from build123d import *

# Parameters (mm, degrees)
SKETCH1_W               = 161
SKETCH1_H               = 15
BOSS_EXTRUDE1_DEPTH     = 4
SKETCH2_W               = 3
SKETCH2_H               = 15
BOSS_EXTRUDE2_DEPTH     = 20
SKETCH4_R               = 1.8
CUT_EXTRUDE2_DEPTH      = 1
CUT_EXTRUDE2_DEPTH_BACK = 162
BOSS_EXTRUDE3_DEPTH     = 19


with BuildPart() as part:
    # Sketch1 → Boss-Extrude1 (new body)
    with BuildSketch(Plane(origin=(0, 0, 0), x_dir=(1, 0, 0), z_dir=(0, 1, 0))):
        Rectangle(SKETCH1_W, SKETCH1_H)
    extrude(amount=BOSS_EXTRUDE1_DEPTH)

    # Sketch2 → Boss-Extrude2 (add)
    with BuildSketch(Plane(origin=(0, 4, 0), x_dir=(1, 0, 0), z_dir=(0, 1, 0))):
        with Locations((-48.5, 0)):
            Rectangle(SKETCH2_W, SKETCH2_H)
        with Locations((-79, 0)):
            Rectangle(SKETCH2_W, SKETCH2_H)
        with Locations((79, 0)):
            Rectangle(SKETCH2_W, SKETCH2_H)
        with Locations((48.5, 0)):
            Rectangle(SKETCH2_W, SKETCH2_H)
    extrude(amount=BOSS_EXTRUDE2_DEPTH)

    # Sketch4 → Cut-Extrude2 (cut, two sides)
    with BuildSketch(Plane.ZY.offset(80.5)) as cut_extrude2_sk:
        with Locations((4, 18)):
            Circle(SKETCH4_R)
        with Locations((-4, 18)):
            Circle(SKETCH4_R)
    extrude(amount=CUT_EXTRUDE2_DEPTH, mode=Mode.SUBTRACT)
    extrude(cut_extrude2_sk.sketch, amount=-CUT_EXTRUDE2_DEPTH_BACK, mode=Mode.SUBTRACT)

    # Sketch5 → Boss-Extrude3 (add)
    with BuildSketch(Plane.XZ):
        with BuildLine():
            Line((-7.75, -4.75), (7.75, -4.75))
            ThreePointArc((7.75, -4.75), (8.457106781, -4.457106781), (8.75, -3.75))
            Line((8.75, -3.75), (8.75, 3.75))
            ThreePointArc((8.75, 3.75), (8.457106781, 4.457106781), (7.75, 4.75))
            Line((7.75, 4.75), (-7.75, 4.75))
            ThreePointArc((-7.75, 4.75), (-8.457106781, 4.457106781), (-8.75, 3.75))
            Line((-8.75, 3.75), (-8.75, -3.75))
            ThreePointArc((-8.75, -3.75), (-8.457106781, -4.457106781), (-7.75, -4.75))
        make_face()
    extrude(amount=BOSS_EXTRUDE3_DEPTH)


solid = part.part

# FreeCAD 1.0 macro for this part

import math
import FreeCAD as App
import Part
import Sketcher
from FreeCAD import Vector
Q = App.Units.Quantity

doc = App.newDocument("Part")
body = doc.addObject("PartDesign::Body", "Body")

# Sketch on XZ plane
sketch1 = body.newObject("Sketcher::SketchObject", "Sketch")
sketch1.AttachmentSupport = (doc.getObject("XZ_Plane"), [""])
sketch1.MapMode = "FlatFace"
sketch1.addGeometry([
    Part.LineSegment(Vector(-80.5, -7.5, 0), Vector(-80.5, 7.5, 0)),
    Part.LineSegment(Vector(-80.5, 7.5, 0), Vector(80.5, 7.5, 0)),
    Part.LineSegment(Vector(80.5, 7.5, 0), Vector(80.5, -7.5, 0)),
    Part.LineSegment(Vector(80.5, -7.5, 0), Vector(-80.5, -7.5, 0)),
], False)
sketch1.addConstraint([
    Sketcher.Constraint("Coincident", 0, 2, 1, 1),
    Sketcher.Constraint("Coincident", 1, 2, 2, 1),
    Sketcher.Constraint("Coincident", 2, 2, 3, 1),
    Sketcher.Constraint("Coincident", 3, 2, 0, 1),
    Sketcher.Constraint("Vertical", 0),
    Sketcher.Constraint("Horizontal", 1),
    Sketcher.Constraint("Vertical", 2),
    Sketcher.Constraint("Horizontal", 3),
    Sketcher.Constraint("Symmetric", 0, 2, 2, 2, -1, 1),
    Sketcher.Constraint("DistanceX", 1, 1, 1, 2, Q("161 mm")),
    Sketcher.Constraint("DistanceY", 0, 1, 0, 2, Q("15 mm")),
])
pad1 = body.newObject("PartDesign::Pad", "Pad")
pad1.Profile = sketch1
pad1.Length = 4
pad1.Reversed = True

# Sketch on XZ plane
sketch2 = body.newObject("Sketcher::SketchObject", "Sketch001")
sketch2.AttachmentSupport = (doc.getObject("XZ_Plane"), [""])
sketch2.MapMode = "FlatFace"
sketch2.AttachmentOffset = App.Placement(Vector(0, 0, -4), App.Rotation())
sketch2.addGeometry([
    Part.LineSegment(Vector(-50, -7.5, 0), Vector(-50, 7.5, 0)),  # 0
    Part.LineSegment(Vector(-50, 7.5, 0), Vector(-47, 7.5, 0)),  # 1
    Part.LineSegment(Vector(-47, 7.5, 0), Vector(-47, -7.5, 0)),  # 2
    Part.LineSegment(Vector(-47, -7.5, 0), Vector(-50, -7.5, 0)),  # 3
    Part.LineSegment(Vector(-80.5, -7.5, 0), Vector(-80.5, 7.5, 0)),  # 4
    Part.LineSegment(Vector(-80.5, 7.5, 0), Vector(-77.5, 7.5, 0)),  # 5
    Part.LineSegment(Vector(-77.5, 7.5, 0), Vector(-77.5, -7.5, 0)),  # 6
    Part.LineSegment(Vector(-77.5, -7.5, 0), Vector(-80.5, -7.5, 0)),  # 7
    Part.LineSegment(Vector(77.5, -7.5, 0), Vector(77.5, 7.5, 0)),  # 8
    Part.LineSegment(Vector(77.5, 7.5, 0), Vector(80.5, 7.5, 0)),  # 9
    Part.LineSegment(Vector(80.5, 7.5, 0), Vector(80.5, -7.5, 0)),  # 10
    Part.LineSegment(Vector(80.5, -7.5, 0), Vector(77.5, -7.5, 0)),  # 11
    Part.LineSegment(Vector(47, -7.5, 0), Vector(47, 7.5, 0)),  # 12
    Part.LineSegment(Vector(47, 7.5, 0), Vector(50, 7.5, 0)),  # 13
    Part.LineSegment(Vector(50, 7.5, 0), Vector(50, -7.5, 0)),  # 14
    Part.LineSegment(Vector(50, -7.5, 0), Vector(47, -7.5, 0)),  # 15
], False)
sketch2.addConstraint([
    Sketcher.Constraint("Coincident", 0, 2, 1, 1),
    Sketcher.Constraint("Coincident", 1, 2, 2, 1),
    Sketcher.Constraint("Coincident", 2, 2, 3, 1),
    Sketcher.Constraint("Coincident", 3, 2, 0, 1),
    Sketcher.Constraint("Coincident", 4, 2, 5, 1),
    Sketcher.Constraint("Coincident", 5, 2, 6, 1),
    Sketcher.Constraint("Coincident", 6, 2, 7, 1),
    Sketcher.Constraint("Coincident", 7, 2, 4, 1),
    Sketcher.Constraint("Coincident", 8, 2, 9, 1),
    Sketcher.Constraint("Coincident", 9, 2, 10, 1),
    Sketcher.Constraint("Coincident", 10, 2, 11, 1),
    Sketcher.Constraint("Coincident", 11, 2, 8, 1),
    Sketcher.Constraint("Coincident", 12, 2, 13, 1),
    Sketcher.Constraint("Coincident", 13, 2, 14, 1),
    Sketcher.Constraint("Coincident", 14, 2, 15, 1),
    Sketcher.Constraint("Coincident", 15, 2, 12, 1),
    Sketcher.Constraint("Vertical", 0),
    Sketcher.Constraint("Horizontal", 1),
    Sketcher.Constraint("Vertical", 2),
    Sketcher.Constraint("Horizontal", 3),
    Sketcher.Constraint("Vertical", 4),
    Sketcher.Constraint("Horizontal", 5),
    Sketcher.Constraint("Vertical", 6),
    Sketcher.Constraint("Horizontal", 7),
    Sketcher.Constraint("Vertical", 8),
    Sketcher.Constraint("Horizontal", 9),
    Sketcher.Constraint("Vertical", 10),
    Sketcher.Constraint("Horizontal", 11),
    Sketcher.Constraint("Vertical", 12),
    Sketcher.Constraint("Horizontal", 13),
    Sketcher.Constraint("Vertical", 14),
    Sketcher.Constraint("Horizontal", 15),
    Sketcher.Constraint("Symmetric", 6, 2, 8, 2, -1, 1),
    Sketcher.Constraint("Symmetric", 4, 2, 10, 2, -1, 1),
    Sketcher.Constraint("Symmetric", 2, 2, 12, 2, -1, 1),
    Sketcher.Constraint("Symmetric", 0, 2, 14, 2, -1, 1),
    Sketcher.Constraint("Horizontal", 1, 2, 4, 2),
    Sketcher.Constraint("Horizontal", 3, 2, 6, 2),
    Sketcher.Constraint("Horizontal", 5, 2, 8, 2),
    Sketcher.Constraint("Equal", 3, 5),
    Sketcher.Constraint("DistanceX", 1, 1, 1, 2, Q("3 mm")),
    Sketcher.Constraint("DistanceY", 0, 1, 0, 2, Q("15 mm")),
    Sketcher.Constraint("DistanceX", 0, 2, -1, 1, Q("50 mm")),
    Sketcher.Constraint("DistanceX", 5, 2, 8, 2, Q("155 mm")),
])
pad2 = body.newObject("PartDesign::Pad", "Pad001")
pad2.Profile = sketch2
pad2.Length = 20
pad2.Reversed = True

# Sketch on YZ plane
sketch3 = body.newObject("Sketcher::SketchObject", "Sketch002")
sketch3.AttachmentSupport = (doc.getObject("YZ_Plane"), [""])
sketch3.MapMode = "FlatFace"
sketch3.AttachmentOffset = App.Placement(Vector(0, 0, -80.5), App.Rotation())
sketch3.addGeometry([
    Part.Circle(Vector(18, 4, 0), Vector(0, 0, 1), 1.8),
    Part.Circle(Vector(18, -4, 0), Vector(0, 0, 1), 1.8),
], False)
sketch3.addConstraint([
    Sketcher.Constraint("Equal", 0, 1),
    Sketcher.Constraint("Symmetric", 0, 3, 1, 3, -1),
    Sketcher.Constraint("Diameter", 0, Q("3.6 mm")),
    Sketcher.Constraint("DistanceX", -1, 1, 0, 3, Q("18 mm")),
    Sketcher.Constraint("DistanceY", -1, 1, 0, 3, Q("4 mm")),
])
pocket1 = body.newObject("PartDesign::Pocket", "Pocket")
pocket1.Profile = sketch3
pocket1.Type = "ThroughAll"
pocket1.Midplane = True

# Sketch on XZ plane
sketch4 = body.newObject("Sketcher::SketchObject", "Sketch003")
sketch4.AttachmentSupport = (doc.getObject("XZ_Plane"), [""])
sketch4.MapMode = "FlatFace"
sketch4.addGeometry([
    Part.LineSegment(Vector(-7.75, -4.75, 0), Vector(7.75, -4.75, 0)),  # 0
    Part.ArcOfCircle(Part.Circle(Vector(7.75, -3.75, 0), Vector(0, 0, 1), 1), math.radians(-90), math.radians(0)),  # 1
    Part.LineSegment(Vector(8.75, -3.75, 0), Vector(8.75, 3.75, 0)),  # 2
    Part.ArcOfCircle(Part.Circle(Vector(7.75, 3.75, 0), Vector(0, 0, 1), 1), math.radians(0), math.radians(90)),  # 3
    Part.LineSegment(Vector(7.75, 4.75, 0), Vector(-7.75, 4.75, 0)),  # 4
    Part.ArcOfCircle(Part.Circle(Vector(-7.75, 3.75, 0), Vector(0, 0, 1), 1), math.radians(90), math.radians(180)),  # 5
    Part.LineSegment(Vector(-8.75, 3.75, 0), Vector(-8.75, -3.75, 0)),  # 6
    Part.ArcOfCircle(Part.Circle(Vector(-7.75, -3.75, 0), Vector(0, 0, 1), 1), math.radians(-180), math.radians(-90)),  # 7
], False)
sketch4.addConstraint([
    Sketcher.Constraint("Tangent", 0, 2, 1, 1),
    Sketcher.Constraint("Tangent", 1, 2, 2, 1),
    Sketcher.Constraint("Tangent", 2, 2, 3, 1),
    Sketcher.Constraint("Tangent", 3, 2, 4, 1),
    Sketcher.Constraint("Tangent", 4, 2, 5, 1),
    Sketcher.Constraint("Tangent", 5, 2, 6, 1),
    Sketcher.Constraint("Tangent", 6, 2, 7, 1),
    Sketcher.Constraint("Tangent", 7, 2, 0, 1),
    Sketcher.Constraint("Horizontal", 0),
    Sketcher.Constraint("Vertical", 2),
    Sketcher.Constraint("Horizontal", 4),
    Sketcher.Constraint("Vertical", 6),
    Sketcher.Constraint("Equal", 1, 3),
    Sketcher.Constraint("Equal", 3, 5),
    Sketcher.Constraint("Equal", 5, 7),
    Sketcher.Constraint("Symmetric", 1, 3, 5, 3, -1, 1),
    Sketcher.Constraint("Radius", 1, Q("1 mm")),
    Sketcher.Constraint("DistanceX", 0, 1, 0, 2, Q("15.5 mm")),
    Sketcher.Constraint("DistanceY", 2, 1, 2, 2, Q("7.5 mm")),
])
pad3 = body.newObject("PartDesign::Pad", "Pad002")
pad3.Profile = sketch4
pad3.Length = 19

doc.recompute()
